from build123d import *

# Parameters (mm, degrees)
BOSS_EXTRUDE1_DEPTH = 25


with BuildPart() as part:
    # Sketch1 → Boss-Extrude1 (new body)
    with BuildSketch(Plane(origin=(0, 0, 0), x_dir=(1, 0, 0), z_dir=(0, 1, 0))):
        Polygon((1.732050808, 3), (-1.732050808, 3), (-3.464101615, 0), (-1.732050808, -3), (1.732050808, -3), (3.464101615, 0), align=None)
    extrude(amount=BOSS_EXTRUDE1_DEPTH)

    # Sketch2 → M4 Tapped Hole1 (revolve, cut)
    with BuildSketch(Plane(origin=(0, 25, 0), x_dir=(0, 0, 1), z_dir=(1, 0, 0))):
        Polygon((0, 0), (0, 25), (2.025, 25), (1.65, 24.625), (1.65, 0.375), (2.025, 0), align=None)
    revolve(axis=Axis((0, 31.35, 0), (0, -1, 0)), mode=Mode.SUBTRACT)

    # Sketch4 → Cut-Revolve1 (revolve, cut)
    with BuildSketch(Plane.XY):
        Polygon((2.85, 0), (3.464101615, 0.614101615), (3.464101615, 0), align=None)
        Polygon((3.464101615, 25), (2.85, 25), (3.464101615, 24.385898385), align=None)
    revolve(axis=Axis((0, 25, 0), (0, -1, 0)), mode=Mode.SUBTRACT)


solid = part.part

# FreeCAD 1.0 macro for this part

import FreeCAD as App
import Part
import Sketcher
from FreeCAD import Vector
Q = App.Units.Quantity

doc = App.newDocument("Part")
params = doc.addObject("Spreadsheet::Sheet", "Params")
for row, (alias, value) in enumerate([
    ("pad1_length", "25 mm"),
    ("sketch2_width", "25 mm"),
    ("sketch2_width2", "24.25 mm"),
    ("groove_angle", "360 deg"),
    ("groove2_angle", "360 deg"),
], start=1):
    params.set(f"A{row}", alias)
    params.set(f"B{row}", "=" + value)
    params.setAlias(f"B{row}", alias)

body = doc.addObject("PartDesign::Body", "Body")

# Sketch on XZ plane
sketch1 = doc.addObject("Sketcher::SketchObject", "Sketch")
body.addObject(sketch1)
sketch1.AttachmentSupport = (doc.XZ_Plane, [""])
sketch1.MapMode = "FlatFace"
sketch1.addGeometry([
    Part.LineSegment(Vector(1.7, -3, 0), Vector(-1.7, -3, 0)),  # 0
    Part.LineSegment(Vector(-1.7, -3, 0), Vector(-3.5, 0, 0)),  # 1
    Part.LineSegment(Vector(-3.5, 0, 0), Vector(-1.7, 3, 0)),  # 2
    Part.LineSegment(Vector(-1.7, 3, 0), Vector(1.7, 3, 0)),  # 3
    Part.LineSegment(Vector(1.7, 3, 0), Vector(3.5, 0, 0)),  # 4
    Part.LineSegment(Vector(3.5, 0, 0), Vector(1.7, -3, 0)),  # 5
], False)
sketch1.addConstraint([
    Sketcher.Constraint("Coincident", 0, 2, 1, 1),
    Sketcher.Constraint("Coincident", 1, 2, 2, 1),
    Sketcher.Constraint("Coincident", 2, 2, 3, 1),
    Sketcher.Constraint("Coincident", 3, 2, 4, 1),
    Sketcher.Constraint("Coincident", 4, 2, 5, 1),
    Sketcher.Constraint("Coincident", 5, 2, 0, 1),
    Sketcher.Constraint("Horizontal", 0),
    Sketcher.Constraint("Horizontal", 3),
    Sketcher.Constraint("Symmetric", 0, 2, 3, 2, -1, 1),
    Sketcher.Constraint("Symmetric", 1, 2, 4, 2, -1, 1),
    Sketcher.Constraint("PointOnObject", 1, 2, -1),
    Sketcher.Constraint("Parallel", 2, 5),
    Sketcher.Constraint("Vertical", 0, 2, 2, 2),
    Sketcher.Constraint("Angle", 1, Q("120 deg")),
    Sketcher.Constraint("DistanceY", 0, 2, -1, 1, 3.0),
    Sketcher.Constraint("DistanceX", 0, 2, 0, 1, 3.464102),
])
pad1 = doc.addObject("PartDesign::Pad", "Pad")
body.addObject(pad1)
pad1.Profile = sketch1
pad1.setExpression("Length", "Params.pad1_length")
pad1.Reversed = True

# Sketch on YZ plane
sketch2 = doc.addObject("Sketcher::SketchObject", "Sketch001")
body.addObject(sketch2)
sketch2.AttachmentSupport = (doc.YZ_Plane, [""])
sketch2.MapMode = "FlatFace"
sketch2.addGeometry([
    Part.LineSegment(Vector(0, 0, 0), Vector(25, 0, 0)),  # 0
    Part.LineSegment(Vector(25, 0, 0), Vector(25, 2, 0)),  # 1
    Part.LineSegment(Vector(25, 2, 0), Vector(24.6, 1.6, 0)),  # 2
    Part.LineSegment(Vector(24.6, 1.6, 0), Vector(0.4, 1.6, 0)),  # 3
    Part.LineSegment(Vector(0.4, 1.6, 0), Vector(0, 2, 0)),  # 4
    Part.LineSegment(Vector(0, 2, 0), Vector(0, 0, 0)),  # 5
], False)
sketch2.addConstraint([
    Sketcher.Constraint("Coincident", 0, 2, 1, 1),
    Sketcher.Constraint("Coincident", 1, 2, 2, 1),
    Sketcher.Constraint("Coincident", 2, 2, 3, 1),
    Sketcher.Constraint("Coincident", 3, 2, 4, 1),
    Sketcher.Constraint("Coincident", 4, 2, 5, 1),
    Sketcher.Constraint("Coincident", 5, 2, 0, 1),
    Sketcher.Constraint("Horizontal", 0),
    Sketcher.Constraint("Vertical", 1),
    Sketcher.Constraint("Horizontal", 3),
    Sketcher.Constraint("Vertical", 5),
    Sketcher.Constraint("Coincident", 5, 2, -1, 1),
    Sketcher.Constraint("Perpendicular", 2, 4),
    Sketcher.Constraint("Horizontal", 1, 2, 4, 2),
    Sketcher.Constraint("Equal", 2, 4),
    Sketcher.Constraint("DistanceX", 0, 1, 0, 2, 25.0),
    Sketcher.Constraint("DistanceX", 3, 2, 3, 1, 24.25),
    Sketcher.Constraint("DistanceY", 1, 1, 1, 2, 2.025),
])
sketch2.setExpression("Constraints[14]", "Params.sketch2_width")
sketch2.setExpression("Constraints[15]", "Params.sketch2_width2")
groove = doc.addObject("PartDesign::Groove", "Groove")
body.addObject(groove)
groove.Profile = sketch2
groove.ReferenceAxis = (sketch2, ["H_Axis"])
groove.setExpression("Angle", "Params.groove_angle")

# Sketch on XY plane
sketch3 = doc.addObject("Sketcher::SketchObject", "Sketch002")
body.addObject(sketch3)
sketch3.AttachmentSupport = (doc.XY_Plane, [""])
sketch3.MapMode = "FlatFace"
sketch3.addGeometry([
    Part.LineSegment(Vector(3.5, 0.6, 0), Vector(2.9, 0, 0)),  # 0
    Part.LineSegment(Vector(2.9, 0, 0), Vector(3.5, 0, 0)),  # 1
    Part.LineSegment(Vector(3.5, 0, 0), Vector(3.5, 0.6, 0)),  # 2
    Part.LineSegment(Vector(3.5, 25, 0), Vector(2.9, 25, 0)),  # 3
    Part.LineSegment(Vector(2.9, 25, 0), Vector(3.5, 24.4, 0)),  # 4
    Part.LineSegment(Vector(3.5, 24.4, 0), Vector(3.5, 25, 0)),  # 5
], False)
sketch3.addConstraint([
    Sketcher.Constraint("Coincident", 0, 2, 1, 1),
    Sketcher.Constraint("Coincident", 1, 2, 2, 1),
    Sketcher.Constraint("Coincident", 2, 2, 0, 1),
    Sketcher.Constraint("Coincident", 3, 2, 4, 1),
    Sketcher.Constraint("Coincident", 4, 2, 5, 1),
    Sketcher.Constraint("Coincident", 5, 2, 3, 1),
    Sketcher.Constraint("Horizontal", 1),
    Sketcher.Constraint("Vertical", 2),
    Sketcher.Constraint("Horizontal", 3),
    Sketcher.Constraint("Vertical", 5),
    Sketcher.Constraint("PointOnObject", 0, 2, -1),
    Sketcher.Constraint("Perpendicular", 0, 4),
    Sketcher.Constraint("Vertical", 0, 2, 3, 2),
    Sketcher.Constraint("Vertical", 2, 2, 4, 2),
    Sketcher.Constraint("Equal", 3, 2),
    Sketcher.Constraint("DistanceY", -1, 1, 3, 2, 25.0),
    Sketcher.Constraint("DistanceX", -1, 1, 0, 2, 2.85),
    Sketcher.Constraint("DistanceX", 1, 1, 1, 2, 0.614102),
])
groove2 = doc.addObject("PartDesign::Groove", "Groove001")
body.addObject(groove2)
groove2.Profile = sketch3
groove2.ReferenceAxis = (sketch3, ["V_Axis"])
groove2.setExpression("Angle", "Params.groove2_angle")

doc.recompute()
